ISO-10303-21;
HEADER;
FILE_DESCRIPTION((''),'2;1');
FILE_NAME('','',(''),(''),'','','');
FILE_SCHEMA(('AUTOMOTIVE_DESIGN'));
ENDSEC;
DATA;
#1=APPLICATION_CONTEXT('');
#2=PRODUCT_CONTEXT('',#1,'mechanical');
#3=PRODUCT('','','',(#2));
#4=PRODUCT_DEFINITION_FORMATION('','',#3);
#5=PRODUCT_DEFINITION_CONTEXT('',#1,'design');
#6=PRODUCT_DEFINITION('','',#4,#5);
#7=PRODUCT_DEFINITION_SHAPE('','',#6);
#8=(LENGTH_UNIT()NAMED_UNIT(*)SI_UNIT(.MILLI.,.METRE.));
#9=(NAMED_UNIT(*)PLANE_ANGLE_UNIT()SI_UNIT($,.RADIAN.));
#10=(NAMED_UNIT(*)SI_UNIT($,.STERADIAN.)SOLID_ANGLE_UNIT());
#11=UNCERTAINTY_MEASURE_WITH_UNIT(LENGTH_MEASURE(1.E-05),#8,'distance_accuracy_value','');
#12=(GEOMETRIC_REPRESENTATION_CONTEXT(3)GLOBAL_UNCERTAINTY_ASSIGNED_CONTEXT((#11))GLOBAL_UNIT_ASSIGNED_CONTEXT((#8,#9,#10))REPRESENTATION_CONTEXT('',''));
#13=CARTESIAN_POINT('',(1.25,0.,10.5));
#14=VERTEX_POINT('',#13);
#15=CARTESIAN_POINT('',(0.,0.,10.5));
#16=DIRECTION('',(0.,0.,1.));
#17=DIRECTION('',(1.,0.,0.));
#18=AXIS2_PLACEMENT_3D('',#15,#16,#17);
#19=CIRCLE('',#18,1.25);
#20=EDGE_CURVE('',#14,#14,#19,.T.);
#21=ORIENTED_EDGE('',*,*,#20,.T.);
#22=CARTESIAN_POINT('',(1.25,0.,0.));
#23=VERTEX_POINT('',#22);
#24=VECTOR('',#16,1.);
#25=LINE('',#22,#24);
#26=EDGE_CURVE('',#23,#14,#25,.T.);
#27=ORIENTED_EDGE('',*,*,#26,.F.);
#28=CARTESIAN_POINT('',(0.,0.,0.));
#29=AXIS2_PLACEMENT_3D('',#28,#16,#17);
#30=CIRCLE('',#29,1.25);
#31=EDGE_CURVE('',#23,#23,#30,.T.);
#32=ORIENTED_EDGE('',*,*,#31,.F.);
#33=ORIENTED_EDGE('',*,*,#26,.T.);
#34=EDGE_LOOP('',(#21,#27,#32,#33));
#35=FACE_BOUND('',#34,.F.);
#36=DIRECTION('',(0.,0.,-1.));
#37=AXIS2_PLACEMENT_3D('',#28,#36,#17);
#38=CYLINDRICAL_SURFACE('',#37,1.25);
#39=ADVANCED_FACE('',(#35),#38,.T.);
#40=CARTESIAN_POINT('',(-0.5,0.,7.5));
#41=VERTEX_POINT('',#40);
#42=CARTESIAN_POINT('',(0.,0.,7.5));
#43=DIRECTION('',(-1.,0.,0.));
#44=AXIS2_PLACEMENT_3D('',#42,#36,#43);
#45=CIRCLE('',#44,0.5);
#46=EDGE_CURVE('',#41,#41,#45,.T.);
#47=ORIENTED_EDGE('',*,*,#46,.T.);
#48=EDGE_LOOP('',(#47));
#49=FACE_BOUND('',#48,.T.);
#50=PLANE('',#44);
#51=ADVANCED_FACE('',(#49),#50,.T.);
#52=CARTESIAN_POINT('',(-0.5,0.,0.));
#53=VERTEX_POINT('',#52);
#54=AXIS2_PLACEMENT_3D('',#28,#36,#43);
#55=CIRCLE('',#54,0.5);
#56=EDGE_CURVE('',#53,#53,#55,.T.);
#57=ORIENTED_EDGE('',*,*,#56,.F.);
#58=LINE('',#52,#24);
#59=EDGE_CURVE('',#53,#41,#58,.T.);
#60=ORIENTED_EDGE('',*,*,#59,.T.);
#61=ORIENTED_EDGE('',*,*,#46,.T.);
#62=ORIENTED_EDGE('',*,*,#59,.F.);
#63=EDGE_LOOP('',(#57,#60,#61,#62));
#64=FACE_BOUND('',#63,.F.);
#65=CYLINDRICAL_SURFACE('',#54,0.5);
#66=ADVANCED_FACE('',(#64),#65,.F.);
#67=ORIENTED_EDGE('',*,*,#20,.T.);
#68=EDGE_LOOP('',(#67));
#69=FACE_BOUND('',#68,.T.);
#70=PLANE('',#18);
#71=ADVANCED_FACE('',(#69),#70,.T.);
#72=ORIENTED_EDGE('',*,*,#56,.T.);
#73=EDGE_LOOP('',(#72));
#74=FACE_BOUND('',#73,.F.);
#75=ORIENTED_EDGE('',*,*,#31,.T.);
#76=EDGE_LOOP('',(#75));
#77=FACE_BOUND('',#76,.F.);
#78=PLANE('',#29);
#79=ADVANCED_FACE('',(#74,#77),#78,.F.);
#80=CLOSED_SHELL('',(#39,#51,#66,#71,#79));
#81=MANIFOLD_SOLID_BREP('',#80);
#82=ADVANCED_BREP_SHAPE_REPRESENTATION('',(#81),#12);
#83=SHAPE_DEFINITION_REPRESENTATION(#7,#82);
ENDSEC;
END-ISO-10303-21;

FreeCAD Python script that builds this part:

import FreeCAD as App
import Part
import Sketcher

V = App.Vector
Q = App.Units.Quantity

doc = App.newDocument("Part")
params = doc.addObject("Spreadsheet::Sheet", "Params")
for row, (alias, value) in enumerate([
    ("sketch1_diameter", "2.5 mm"),
    ("pad1_length", "10.5 mm"),
    ("sketch2_diameter", "1 mm"),
    ("pocket1_length", "7.5 mm"),
], start=1):
    params.set(f"A{row}", alias)
    params.set(f"B{row}", "=" + value)
    params.setAlias(f"B{row}", alias)

body = doc.addObject("PartDesign::Body", "Body")

# Sketch on XY plane
sketch1 = body.newObject("Sketcher::SketchObject", "Sketch")
sketch1.AttachmentSupport = (doc.getObject("XY_Plane"), [""])
sketch1.MapMode = "FlatFace"
sketch1.addGeometry(Part.Circle(V(0, 0, 0), V(0, 0, 1), 1.25), False)
sketch1.addConstraint(Sketcher.Constraint("Coincident", 0, 3, -1, 1))
sketch1.addConstraint(Sketcher.Constraint("Diameter", 0, Q("2.5 mm")))
sketch1.setExpression("Constraints[1]", "Params.sketch1_diameter")
pad1 = body.newObject("PartDesign::Pad", "Pad")
pad1.Profile = sketch1
pad1.setExpression("Length", "Params.pad1_length")

# Sketch on XY plane
sketch2 = body.newObject("Sketcher::SketchObject", "Sketch001")
sketch2.AttachmentSupport = (doc.getObject("XY_Plane"), [""])
sketch2.MapMode = "FlatFace"
sketch2.addGeometry(Part.Circle(V(0, 0, 0), V(0, 0, 1), 0.5), False)
sketch2.addConstraint(Sketcher.Constraint("Coincident", 0, 3, -1, 1))
sketch2.addConstraint(Sketcher.Constraint("Diameter", 0, Q("1 mm")))
sketch2.setExpression("Constraints[1]", "Params.sketch2_diameter")
pocket1 = body.newObject("PartDesign::Pocket", "Pocket")
pocket1.Profile = sketch2
pocket1.setExpression("Length", "Params.pocket1_length")
pocket1.Reversed = True

doc.recompute()
